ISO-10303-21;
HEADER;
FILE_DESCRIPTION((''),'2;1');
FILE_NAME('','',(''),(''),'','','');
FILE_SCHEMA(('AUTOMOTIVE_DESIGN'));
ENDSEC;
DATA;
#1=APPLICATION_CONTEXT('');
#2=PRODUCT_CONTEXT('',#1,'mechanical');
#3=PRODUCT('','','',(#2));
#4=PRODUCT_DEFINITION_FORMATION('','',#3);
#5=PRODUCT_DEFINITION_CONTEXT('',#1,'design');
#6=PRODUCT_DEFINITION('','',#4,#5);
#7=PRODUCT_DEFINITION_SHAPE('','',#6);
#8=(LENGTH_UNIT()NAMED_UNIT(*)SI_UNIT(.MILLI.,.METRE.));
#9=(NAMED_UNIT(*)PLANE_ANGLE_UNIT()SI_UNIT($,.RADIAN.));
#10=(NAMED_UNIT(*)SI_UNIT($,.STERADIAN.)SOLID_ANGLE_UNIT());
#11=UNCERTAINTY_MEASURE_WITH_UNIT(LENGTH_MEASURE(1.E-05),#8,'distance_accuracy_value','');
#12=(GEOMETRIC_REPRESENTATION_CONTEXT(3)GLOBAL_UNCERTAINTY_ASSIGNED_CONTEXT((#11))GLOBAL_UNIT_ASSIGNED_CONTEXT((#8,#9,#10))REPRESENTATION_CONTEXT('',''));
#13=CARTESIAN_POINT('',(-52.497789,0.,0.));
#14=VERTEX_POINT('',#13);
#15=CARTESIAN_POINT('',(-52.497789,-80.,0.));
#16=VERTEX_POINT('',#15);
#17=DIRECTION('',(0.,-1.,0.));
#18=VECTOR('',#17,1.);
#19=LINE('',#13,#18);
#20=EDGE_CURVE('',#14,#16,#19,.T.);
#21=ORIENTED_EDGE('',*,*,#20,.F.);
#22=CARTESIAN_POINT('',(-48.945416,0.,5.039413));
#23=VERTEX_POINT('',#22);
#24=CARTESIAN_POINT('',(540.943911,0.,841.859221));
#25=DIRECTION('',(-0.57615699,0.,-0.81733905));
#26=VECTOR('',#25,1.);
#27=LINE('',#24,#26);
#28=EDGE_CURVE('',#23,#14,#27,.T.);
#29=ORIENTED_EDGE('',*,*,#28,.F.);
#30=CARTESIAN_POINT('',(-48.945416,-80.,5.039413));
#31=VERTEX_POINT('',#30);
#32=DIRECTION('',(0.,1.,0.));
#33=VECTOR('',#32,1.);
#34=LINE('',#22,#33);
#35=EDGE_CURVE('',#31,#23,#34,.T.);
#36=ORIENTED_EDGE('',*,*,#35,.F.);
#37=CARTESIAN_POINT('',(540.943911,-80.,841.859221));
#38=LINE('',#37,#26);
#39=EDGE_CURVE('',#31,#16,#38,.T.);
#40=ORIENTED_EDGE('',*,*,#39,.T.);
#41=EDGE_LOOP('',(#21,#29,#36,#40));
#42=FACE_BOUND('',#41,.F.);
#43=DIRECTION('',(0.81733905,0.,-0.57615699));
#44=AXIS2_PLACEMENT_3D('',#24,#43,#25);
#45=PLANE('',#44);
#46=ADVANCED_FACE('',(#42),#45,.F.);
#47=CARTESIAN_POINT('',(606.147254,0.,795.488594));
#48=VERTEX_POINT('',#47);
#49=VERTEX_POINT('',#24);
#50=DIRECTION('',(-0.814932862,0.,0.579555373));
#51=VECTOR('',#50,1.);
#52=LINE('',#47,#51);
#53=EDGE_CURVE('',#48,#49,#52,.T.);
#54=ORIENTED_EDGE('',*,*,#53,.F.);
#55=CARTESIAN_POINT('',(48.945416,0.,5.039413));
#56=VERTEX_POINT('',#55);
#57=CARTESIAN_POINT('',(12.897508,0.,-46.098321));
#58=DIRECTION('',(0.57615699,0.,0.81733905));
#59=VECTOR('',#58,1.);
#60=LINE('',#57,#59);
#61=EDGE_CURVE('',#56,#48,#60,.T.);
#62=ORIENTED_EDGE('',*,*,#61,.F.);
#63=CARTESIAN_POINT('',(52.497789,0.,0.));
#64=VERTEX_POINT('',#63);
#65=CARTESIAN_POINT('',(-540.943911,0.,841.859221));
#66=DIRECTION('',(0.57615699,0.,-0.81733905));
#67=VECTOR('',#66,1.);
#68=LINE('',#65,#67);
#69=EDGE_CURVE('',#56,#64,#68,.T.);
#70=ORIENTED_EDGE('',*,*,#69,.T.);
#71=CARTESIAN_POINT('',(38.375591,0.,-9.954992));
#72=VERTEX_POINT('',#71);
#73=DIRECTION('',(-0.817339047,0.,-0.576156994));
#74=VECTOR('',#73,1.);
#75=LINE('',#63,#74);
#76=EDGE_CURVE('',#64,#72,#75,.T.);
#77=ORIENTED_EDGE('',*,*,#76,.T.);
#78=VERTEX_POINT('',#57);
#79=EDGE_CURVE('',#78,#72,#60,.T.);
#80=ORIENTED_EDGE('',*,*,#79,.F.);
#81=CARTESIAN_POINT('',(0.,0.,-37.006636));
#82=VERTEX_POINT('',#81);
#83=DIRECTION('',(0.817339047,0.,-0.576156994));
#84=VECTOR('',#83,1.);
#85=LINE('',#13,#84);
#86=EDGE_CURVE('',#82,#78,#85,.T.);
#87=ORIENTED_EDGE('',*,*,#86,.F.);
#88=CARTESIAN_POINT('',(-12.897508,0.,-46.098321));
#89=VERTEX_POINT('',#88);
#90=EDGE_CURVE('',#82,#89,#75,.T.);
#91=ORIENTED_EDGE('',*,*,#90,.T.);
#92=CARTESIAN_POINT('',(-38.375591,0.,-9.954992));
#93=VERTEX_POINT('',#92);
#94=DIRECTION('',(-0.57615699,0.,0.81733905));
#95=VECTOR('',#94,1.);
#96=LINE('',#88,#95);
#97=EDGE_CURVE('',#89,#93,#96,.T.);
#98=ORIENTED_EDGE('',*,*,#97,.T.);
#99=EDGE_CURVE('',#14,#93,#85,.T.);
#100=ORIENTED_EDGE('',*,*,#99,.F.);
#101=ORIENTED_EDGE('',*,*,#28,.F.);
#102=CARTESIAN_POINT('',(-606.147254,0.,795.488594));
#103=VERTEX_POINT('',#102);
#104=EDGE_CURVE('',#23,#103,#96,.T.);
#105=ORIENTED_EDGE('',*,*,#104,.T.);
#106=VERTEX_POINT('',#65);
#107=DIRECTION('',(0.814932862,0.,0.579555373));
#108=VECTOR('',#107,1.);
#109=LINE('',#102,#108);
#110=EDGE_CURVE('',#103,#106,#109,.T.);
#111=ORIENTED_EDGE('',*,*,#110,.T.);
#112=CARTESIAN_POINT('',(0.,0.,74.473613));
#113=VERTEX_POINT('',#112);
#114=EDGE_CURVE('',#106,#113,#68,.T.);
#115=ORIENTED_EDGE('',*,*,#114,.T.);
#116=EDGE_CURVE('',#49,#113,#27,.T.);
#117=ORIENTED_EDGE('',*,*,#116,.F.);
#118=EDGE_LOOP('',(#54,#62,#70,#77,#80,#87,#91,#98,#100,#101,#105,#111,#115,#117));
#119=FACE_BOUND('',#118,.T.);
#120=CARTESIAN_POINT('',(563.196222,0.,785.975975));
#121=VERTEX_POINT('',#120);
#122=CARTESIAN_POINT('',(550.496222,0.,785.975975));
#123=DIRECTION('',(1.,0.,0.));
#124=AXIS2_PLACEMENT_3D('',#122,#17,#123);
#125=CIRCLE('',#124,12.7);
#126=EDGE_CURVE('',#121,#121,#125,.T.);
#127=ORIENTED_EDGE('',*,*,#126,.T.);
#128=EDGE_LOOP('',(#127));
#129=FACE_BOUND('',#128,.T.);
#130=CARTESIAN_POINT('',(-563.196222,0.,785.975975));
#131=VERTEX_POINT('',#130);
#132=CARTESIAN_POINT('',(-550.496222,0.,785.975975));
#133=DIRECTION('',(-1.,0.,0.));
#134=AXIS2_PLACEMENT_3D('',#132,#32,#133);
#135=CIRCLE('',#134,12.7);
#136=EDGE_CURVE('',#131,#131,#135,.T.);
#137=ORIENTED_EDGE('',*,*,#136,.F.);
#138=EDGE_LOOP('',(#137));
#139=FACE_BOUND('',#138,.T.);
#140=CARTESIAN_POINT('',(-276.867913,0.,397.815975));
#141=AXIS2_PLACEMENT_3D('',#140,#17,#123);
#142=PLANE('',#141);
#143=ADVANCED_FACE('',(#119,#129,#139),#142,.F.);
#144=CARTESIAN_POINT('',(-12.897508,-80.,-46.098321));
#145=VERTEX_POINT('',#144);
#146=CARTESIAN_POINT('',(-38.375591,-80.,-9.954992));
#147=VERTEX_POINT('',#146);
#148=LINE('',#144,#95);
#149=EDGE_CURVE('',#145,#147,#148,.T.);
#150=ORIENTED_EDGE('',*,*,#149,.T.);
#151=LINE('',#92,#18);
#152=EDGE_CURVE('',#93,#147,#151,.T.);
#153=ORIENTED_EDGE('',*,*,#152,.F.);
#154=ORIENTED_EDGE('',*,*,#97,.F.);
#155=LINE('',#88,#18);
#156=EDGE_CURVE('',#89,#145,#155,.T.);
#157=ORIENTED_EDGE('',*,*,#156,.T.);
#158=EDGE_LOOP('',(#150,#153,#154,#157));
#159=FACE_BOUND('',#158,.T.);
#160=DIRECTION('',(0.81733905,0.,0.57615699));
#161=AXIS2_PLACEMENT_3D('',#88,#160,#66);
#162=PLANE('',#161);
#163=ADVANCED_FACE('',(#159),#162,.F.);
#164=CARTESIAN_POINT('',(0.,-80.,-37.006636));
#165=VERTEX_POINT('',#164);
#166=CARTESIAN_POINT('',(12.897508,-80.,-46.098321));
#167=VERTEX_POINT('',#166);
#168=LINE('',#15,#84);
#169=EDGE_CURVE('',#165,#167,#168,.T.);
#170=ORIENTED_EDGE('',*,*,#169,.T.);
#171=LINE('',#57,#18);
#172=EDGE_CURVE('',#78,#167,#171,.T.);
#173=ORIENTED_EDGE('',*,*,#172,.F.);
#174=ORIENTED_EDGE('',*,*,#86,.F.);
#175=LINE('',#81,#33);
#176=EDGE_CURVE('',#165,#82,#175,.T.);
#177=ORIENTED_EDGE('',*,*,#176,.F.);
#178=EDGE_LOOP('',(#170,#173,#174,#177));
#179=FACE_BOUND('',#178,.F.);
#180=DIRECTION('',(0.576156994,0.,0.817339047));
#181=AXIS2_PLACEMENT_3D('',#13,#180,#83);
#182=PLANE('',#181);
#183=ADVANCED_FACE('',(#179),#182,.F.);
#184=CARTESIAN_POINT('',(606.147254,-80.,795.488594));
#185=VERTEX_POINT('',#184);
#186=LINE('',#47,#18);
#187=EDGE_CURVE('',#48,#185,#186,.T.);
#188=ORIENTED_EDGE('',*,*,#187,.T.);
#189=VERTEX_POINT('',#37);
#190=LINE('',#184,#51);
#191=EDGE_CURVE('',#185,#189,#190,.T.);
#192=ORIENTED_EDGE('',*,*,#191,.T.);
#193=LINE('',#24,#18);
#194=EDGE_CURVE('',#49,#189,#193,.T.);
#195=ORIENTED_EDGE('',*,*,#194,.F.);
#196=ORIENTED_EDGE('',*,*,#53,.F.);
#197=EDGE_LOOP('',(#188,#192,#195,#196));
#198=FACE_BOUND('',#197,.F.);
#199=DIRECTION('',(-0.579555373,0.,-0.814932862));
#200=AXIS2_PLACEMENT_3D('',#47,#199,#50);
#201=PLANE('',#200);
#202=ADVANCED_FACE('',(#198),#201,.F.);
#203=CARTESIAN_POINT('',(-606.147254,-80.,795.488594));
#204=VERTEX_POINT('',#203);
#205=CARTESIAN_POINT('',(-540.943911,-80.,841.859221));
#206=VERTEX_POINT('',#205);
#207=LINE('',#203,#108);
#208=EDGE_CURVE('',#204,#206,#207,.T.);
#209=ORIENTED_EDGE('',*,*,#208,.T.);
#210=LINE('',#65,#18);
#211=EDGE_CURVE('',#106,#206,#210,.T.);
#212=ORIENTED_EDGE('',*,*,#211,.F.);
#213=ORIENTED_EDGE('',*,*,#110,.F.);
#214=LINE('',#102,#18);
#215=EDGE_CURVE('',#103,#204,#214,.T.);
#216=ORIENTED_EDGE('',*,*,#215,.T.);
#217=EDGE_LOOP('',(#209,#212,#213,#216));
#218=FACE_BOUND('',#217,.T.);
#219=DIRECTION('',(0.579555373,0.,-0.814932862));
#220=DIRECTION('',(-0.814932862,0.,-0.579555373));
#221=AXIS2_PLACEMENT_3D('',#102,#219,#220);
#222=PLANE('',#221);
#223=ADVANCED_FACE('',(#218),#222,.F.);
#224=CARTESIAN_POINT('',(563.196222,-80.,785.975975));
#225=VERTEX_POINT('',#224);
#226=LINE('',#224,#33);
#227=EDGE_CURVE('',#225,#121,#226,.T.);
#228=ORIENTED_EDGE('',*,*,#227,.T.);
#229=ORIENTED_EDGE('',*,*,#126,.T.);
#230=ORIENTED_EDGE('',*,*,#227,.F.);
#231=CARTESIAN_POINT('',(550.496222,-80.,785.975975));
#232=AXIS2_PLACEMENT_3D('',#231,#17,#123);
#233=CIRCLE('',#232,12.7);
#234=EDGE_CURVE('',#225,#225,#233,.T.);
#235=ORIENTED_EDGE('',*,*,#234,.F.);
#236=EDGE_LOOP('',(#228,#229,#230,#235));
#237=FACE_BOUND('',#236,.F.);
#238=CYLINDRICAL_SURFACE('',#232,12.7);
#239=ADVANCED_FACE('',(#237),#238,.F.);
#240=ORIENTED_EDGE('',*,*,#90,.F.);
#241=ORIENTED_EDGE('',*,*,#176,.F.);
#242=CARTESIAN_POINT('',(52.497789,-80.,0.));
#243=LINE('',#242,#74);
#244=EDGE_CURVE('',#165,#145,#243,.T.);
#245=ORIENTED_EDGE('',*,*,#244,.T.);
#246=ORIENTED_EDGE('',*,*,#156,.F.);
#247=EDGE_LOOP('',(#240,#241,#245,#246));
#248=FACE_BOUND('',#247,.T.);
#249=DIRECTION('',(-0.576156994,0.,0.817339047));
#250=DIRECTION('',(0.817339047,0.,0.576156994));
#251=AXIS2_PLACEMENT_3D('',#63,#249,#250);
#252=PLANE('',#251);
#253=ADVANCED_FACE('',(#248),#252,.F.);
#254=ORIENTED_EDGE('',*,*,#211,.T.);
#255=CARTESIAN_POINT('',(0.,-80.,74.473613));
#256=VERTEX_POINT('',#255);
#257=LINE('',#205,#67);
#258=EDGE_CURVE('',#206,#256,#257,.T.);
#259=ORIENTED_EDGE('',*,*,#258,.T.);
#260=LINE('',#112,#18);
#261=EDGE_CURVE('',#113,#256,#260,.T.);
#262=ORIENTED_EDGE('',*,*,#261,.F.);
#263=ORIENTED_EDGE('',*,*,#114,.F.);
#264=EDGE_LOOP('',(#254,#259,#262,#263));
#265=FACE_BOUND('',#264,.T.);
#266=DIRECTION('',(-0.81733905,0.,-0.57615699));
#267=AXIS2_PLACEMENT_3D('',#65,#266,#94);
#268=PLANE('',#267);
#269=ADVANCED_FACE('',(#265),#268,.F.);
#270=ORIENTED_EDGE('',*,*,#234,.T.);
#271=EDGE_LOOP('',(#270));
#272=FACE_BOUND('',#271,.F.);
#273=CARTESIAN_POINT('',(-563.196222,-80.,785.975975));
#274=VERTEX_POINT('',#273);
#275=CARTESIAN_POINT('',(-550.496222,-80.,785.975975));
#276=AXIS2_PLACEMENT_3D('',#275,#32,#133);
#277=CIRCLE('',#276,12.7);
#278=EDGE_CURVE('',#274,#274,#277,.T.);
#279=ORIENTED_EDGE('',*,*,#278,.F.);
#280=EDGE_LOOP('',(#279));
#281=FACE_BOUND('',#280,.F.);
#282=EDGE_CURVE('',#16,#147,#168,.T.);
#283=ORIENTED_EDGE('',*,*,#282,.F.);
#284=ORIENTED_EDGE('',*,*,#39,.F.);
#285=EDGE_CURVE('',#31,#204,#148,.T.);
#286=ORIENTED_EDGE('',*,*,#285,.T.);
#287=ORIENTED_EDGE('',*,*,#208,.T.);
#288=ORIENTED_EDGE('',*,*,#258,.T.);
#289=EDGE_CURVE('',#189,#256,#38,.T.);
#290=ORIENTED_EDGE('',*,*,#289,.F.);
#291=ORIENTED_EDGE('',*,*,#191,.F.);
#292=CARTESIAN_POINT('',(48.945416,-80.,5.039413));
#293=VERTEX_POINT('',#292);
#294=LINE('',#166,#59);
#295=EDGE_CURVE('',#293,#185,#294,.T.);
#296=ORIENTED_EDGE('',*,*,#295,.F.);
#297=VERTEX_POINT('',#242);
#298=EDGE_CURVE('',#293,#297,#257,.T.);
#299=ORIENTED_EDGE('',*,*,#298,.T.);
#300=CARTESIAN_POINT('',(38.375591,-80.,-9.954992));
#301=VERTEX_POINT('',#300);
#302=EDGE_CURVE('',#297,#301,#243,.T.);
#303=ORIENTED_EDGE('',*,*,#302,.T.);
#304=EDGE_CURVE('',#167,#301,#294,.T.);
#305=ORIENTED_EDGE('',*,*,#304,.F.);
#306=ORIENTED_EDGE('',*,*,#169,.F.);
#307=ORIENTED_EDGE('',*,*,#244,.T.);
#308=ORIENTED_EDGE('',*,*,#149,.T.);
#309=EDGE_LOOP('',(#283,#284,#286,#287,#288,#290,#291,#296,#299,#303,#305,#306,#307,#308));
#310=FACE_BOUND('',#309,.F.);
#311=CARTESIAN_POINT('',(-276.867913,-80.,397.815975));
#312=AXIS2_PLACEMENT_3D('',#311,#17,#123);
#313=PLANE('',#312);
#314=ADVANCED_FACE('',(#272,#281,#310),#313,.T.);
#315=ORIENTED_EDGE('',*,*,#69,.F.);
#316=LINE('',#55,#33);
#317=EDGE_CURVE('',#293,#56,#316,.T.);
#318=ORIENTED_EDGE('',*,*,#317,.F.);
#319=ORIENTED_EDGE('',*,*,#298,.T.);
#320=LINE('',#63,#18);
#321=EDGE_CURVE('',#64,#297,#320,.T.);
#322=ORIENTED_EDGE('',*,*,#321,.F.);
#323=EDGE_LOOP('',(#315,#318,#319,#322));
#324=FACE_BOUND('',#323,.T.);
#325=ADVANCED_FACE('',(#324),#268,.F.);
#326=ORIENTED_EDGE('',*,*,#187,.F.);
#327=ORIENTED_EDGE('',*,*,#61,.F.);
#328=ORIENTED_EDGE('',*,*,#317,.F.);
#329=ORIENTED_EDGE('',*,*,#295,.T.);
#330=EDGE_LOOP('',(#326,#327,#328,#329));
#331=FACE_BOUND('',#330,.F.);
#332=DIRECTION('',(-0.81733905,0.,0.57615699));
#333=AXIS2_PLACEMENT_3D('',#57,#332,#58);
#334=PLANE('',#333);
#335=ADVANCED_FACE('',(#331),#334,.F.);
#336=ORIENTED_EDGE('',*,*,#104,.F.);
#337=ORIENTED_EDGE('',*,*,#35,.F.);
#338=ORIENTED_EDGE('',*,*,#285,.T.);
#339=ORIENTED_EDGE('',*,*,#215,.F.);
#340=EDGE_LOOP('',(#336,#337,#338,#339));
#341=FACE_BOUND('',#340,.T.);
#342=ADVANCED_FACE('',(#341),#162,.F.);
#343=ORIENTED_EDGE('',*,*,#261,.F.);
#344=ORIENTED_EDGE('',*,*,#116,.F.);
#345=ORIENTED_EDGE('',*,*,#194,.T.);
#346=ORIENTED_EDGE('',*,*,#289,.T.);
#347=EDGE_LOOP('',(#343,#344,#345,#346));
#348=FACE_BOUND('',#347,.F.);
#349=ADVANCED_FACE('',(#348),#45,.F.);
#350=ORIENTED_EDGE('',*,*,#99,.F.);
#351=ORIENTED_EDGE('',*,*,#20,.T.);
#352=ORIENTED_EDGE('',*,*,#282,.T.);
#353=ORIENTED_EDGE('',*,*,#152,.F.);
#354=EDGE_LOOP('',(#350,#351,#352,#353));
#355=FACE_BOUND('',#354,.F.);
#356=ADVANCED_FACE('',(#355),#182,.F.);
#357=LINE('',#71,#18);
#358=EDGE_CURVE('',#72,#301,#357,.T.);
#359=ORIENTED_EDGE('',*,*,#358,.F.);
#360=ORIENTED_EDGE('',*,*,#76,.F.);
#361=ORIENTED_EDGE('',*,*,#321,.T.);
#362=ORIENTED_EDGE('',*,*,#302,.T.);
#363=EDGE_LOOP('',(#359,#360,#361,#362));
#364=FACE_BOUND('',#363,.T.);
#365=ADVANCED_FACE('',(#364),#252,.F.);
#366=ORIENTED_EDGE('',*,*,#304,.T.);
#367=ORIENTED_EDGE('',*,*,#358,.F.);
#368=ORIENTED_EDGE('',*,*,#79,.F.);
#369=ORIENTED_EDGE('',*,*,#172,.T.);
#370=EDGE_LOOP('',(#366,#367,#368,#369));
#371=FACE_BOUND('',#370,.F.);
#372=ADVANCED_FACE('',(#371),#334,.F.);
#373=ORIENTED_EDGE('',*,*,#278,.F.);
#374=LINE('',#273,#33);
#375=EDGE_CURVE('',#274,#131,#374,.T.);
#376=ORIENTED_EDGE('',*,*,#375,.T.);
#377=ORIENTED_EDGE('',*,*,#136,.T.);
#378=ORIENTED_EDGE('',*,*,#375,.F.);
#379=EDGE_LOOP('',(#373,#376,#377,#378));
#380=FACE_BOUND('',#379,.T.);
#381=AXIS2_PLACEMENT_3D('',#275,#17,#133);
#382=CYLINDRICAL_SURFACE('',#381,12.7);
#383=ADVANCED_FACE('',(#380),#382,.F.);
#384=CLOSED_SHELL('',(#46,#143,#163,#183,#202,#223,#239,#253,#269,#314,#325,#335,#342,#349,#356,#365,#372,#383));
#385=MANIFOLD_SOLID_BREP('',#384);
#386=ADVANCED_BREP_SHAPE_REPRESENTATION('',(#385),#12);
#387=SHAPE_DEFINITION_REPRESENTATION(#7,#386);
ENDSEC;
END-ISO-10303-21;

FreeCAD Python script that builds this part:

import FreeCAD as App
import Part
import Sketcher

V = App.Vector


def add_polygon(sketch, points):
    """Adds a closed chain of lines whose ends are joined by coincident constraints."""
    first, n = sketch.GeometryCount, len(points)
    for a, b in zip(points, points[1:] + points[:1]):
        sketch.addGeometry(Part.LineSegment(App.Vector(*a, 0), App.Vector(*b, 0)), False)
    for i in range(n):
        sketch.addConstraint(Sketcher.Constraint("Coincident", first + i, 2, first + (i + 1) % n, 1))

doc = App.newDocument("Part")
body = doc.addObject("PartDesign::Body", "Body")

# Sketch on XZ plane
sketch1 = body.newObject("Sketcher::SketchObject", "Sketch")
sketch1.AttachmentSupport = (doc.getObject("XZ_Plane"), [""])
sketch1.MapMode = "FlatFace"
add_polygon(sketch1, [(541, 842), (-52, 0), (13, -46), (606, 795)])  # lines 0-3
sketch1.addConstraint(Sketcher.Constraint("PointOnObject", 0, 2, -1))
sketch1.addConstraint(Sketcher.Constraint("Perpendicular", 0, 1))
sketch1.addConstraint(Sketcher.Constraint("Perpendicular", 1, 2))
sketch1.addConstraint(Sketcher.Constraint("Distance", 0, 1030.0))
sketch1.addConstraint(Sketcher.Constraint("Distance", 1, 80.01))
sketch1.addConstraint(Sketcher.Constraint("DistanceX", 0, 2, 3, 2, 593.4417))
sketch1.addConstraint(Sketcher.Constraint("DistanceX", 0, 2, -1, 1, 52.497789))
sketch1.addConstraint(Sketcher.Constraint("Distance", 2, 1029.666838))
pad1 = body.newObject("PartDesign::Pad", "Pad")
pad1.Profile = sketch1
pad1.Length = 80

# Sketch on XZ plane
sketch2 = body.newObject("Sketcher::SketchObject", "Sketch001")
sketch2.AttachmentSupport = (doc.getObject("XZ_Plane"), [""])
sketch2.MapMode = "FlatFace"
sketch2.AttachmentOffset = App.Placement(V(0, 0, 80), App.Rotation())
sketch2.addGeometry(Part.Circle(V(550, 786, 0), V(0, 0, 1), 13), False)
sketch2.addConstraint(Sketcher.Constraint("Diameter", 0, 25.4))
sketch2.addConstraint(Sketcher.Constraint("DistanceX", -1, 1, 0, 3, 550.496222))
sketch2.addConstraint(Sketcher.Constraint("DistanceY", -1, 1, 0, 3, 785.975975))
pocket1 = body.newObject("PartDesign::Pocket", "Pocket")
pocket1.Profile = sketch2
pocket1.Type = "ThroughAll"
body2 = doc.addObject("PartDesign::Body", "Body001")
doc.recompute()

body2.BaseFeature = body
doc.recompute()

mirroring = doc.addObject("Part::Mirroring", "Mirroring")
mirroring.Source = body
mirroring.Base = V(0, 0, 0)
mirroring.Normal = V(1, 0, 0)
body3 = doc.addObject("PartDesign::Body", "Body002")
body3.BaseFeature = mirroring
boolean = body2.newObject("PartDesign::Boolean", "Boolean")
boolean.Type = "Fuse"
boolean.addObjects([body3])
doc.recompute()
mirroring.Visibility = False

doc.recompute()
